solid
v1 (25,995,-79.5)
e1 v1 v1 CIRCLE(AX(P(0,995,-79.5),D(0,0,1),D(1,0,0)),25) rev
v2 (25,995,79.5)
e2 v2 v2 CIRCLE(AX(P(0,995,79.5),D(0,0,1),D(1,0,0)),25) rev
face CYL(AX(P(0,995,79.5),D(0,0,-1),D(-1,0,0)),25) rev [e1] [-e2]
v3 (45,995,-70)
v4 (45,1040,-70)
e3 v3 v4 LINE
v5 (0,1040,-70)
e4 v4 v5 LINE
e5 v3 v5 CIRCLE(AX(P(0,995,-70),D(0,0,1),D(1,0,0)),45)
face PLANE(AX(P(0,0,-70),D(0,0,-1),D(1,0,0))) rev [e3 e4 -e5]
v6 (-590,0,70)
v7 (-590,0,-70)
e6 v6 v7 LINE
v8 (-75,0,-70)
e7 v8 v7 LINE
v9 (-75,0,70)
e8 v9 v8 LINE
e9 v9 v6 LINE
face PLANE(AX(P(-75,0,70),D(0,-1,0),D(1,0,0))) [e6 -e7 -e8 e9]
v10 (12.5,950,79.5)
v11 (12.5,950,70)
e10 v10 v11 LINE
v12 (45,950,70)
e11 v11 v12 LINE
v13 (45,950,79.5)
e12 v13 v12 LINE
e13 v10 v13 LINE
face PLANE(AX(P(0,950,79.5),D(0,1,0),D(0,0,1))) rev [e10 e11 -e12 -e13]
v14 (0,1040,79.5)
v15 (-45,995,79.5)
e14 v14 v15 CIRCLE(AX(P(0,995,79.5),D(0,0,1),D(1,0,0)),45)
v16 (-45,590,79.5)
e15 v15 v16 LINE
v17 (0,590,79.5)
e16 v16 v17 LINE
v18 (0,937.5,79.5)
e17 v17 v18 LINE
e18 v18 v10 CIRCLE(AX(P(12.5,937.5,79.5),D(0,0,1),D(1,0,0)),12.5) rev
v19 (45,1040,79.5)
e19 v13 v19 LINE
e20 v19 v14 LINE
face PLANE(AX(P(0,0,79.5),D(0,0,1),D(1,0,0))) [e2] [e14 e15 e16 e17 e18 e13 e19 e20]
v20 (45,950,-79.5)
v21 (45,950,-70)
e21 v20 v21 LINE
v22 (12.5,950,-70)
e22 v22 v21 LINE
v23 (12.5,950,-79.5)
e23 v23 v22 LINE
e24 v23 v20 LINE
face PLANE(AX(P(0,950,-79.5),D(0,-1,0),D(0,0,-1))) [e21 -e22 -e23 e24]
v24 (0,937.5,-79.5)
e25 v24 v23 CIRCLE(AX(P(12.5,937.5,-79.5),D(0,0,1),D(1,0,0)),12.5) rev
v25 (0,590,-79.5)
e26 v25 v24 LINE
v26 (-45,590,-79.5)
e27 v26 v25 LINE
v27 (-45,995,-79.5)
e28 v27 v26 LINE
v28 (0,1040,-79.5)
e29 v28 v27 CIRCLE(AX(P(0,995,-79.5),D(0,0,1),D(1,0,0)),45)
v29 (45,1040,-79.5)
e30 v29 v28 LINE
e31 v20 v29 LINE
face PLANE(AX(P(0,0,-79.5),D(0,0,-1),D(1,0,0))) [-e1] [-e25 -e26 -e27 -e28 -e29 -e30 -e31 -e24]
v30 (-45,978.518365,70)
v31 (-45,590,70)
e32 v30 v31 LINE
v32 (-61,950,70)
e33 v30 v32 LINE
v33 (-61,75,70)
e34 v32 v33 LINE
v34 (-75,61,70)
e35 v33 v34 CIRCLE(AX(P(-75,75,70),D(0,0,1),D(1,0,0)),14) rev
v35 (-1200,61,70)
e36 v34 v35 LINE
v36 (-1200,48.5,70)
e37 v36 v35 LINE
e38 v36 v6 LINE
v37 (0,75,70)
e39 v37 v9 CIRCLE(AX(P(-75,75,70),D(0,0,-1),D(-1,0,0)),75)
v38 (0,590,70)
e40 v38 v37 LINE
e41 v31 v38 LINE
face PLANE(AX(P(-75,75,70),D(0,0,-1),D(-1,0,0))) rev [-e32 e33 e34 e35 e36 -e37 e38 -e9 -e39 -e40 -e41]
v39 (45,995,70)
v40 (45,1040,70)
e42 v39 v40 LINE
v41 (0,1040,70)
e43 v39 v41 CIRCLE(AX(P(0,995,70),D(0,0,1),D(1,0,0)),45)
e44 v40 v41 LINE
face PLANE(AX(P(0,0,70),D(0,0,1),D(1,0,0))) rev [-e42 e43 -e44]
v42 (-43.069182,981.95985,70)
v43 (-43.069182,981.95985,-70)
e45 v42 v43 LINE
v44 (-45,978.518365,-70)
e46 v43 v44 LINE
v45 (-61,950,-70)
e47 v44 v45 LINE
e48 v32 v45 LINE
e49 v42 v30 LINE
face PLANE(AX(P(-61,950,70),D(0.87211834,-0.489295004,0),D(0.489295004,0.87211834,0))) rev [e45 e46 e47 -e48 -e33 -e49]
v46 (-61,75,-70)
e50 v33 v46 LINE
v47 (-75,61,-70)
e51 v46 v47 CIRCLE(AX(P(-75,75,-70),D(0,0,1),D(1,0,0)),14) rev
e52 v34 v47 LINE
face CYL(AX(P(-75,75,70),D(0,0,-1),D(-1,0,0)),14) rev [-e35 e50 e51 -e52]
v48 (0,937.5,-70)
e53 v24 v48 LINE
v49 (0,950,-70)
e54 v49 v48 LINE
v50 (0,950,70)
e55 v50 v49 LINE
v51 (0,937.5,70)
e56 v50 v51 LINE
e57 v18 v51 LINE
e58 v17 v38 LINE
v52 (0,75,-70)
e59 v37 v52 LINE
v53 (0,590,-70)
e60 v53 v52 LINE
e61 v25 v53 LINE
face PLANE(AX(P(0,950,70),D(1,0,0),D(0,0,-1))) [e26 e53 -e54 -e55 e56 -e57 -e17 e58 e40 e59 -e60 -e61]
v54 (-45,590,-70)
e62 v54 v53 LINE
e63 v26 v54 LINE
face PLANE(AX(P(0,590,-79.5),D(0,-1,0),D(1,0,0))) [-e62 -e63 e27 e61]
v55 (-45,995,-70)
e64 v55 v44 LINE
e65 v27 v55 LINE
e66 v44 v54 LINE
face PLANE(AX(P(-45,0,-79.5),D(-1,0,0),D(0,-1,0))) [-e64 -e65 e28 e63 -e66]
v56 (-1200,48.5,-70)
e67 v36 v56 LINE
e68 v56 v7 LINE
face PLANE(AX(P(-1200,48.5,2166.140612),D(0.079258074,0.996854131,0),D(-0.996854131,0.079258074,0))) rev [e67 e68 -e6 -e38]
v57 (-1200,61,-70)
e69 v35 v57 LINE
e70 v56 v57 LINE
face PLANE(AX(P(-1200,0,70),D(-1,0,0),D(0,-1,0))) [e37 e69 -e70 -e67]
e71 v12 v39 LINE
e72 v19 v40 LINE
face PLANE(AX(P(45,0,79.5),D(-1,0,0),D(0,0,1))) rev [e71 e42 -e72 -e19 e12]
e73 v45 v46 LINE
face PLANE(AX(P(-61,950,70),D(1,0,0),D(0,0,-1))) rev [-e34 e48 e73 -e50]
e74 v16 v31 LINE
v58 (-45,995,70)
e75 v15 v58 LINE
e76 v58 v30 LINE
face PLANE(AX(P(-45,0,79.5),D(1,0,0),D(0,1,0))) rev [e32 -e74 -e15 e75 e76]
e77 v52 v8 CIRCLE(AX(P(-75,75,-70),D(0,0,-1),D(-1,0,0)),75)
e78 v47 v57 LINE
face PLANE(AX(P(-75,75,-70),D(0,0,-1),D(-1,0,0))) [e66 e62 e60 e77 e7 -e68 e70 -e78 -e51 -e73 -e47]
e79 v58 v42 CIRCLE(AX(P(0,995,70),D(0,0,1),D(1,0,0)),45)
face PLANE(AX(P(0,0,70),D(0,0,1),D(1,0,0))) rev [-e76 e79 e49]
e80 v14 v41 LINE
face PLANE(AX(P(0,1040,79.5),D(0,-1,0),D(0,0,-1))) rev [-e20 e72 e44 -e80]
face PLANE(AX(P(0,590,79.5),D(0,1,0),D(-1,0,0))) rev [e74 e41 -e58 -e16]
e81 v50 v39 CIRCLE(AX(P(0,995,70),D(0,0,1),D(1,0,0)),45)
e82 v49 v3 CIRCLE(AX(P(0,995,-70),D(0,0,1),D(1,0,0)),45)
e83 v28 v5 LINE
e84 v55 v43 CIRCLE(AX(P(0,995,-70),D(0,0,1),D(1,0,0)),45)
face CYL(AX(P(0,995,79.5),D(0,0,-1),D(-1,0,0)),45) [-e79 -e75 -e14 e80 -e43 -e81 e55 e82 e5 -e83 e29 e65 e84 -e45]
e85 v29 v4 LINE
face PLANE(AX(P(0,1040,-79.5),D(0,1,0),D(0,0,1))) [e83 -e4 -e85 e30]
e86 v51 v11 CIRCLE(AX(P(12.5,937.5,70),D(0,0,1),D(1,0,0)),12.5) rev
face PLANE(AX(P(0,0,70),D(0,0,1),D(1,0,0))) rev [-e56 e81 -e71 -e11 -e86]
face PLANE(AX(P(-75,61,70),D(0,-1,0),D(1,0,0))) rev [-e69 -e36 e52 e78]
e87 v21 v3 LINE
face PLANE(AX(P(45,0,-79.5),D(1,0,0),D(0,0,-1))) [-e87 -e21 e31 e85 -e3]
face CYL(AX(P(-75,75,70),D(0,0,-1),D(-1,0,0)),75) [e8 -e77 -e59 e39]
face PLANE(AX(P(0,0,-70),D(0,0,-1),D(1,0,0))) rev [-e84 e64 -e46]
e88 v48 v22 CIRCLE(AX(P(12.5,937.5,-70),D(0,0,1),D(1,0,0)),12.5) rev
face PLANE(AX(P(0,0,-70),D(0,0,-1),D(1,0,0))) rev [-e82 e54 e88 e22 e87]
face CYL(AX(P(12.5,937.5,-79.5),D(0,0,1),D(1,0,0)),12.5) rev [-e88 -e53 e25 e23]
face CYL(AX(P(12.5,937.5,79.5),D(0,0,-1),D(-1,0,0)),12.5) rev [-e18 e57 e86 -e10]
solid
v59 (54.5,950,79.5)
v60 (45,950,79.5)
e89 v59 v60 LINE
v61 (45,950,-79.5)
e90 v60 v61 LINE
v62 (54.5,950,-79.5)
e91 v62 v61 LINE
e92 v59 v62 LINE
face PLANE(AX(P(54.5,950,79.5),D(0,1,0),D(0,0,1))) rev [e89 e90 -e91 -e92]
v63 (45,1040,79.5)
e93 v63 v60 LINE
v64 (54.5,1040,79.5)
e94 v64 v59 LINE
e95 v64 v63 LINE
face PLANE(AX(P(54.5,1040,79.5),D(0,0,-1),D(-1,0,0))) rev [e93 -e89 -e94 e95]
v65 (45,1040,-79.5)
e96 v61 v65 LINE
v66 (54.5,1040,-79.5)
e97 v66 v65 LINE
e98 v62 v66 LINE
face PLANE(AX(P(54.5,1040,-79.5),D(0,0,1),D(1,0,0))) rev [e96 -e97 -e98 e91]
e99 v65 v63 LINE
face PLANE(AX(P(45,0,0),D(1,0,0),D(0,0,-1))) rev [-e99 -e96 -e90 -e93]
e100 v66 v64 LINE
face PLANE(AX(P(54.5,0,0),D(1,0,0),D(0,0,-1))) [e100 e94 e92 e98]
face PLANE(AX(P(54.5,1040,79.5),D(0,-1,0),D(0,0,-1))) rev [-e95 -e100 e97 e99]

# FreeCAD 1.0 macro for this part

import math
import FreeCAD as App
import Part
import Sketcher

V = App.Vector
Q = App.Units.Quantity


def add_polygon(sketch, points):
    """Adds a closed chain of lines whose ends are joined by coincident constraints."""
    first, n = sketch.GeometryCount, len(points)
    for a, b in zip(points, points[1:] + points[:1]):
        sketch.addGeometry(Part.LineSegment(App.Vector(*a, 0), App.Vector(*b, 0)), False)
    for i in range(n):
        sketch.addConstraint(Sketcher.Constraint("Coincident", first + i, 2, first + (i + 1) % n, 1))

doc = App.newDocument("Part")
body = doc.addObject("PartDesign::Body", "Body")

sketch1 = doc.addObject("Sketcher::SketchObject", "Sketch")
body.addObject(sketch1)
sketch1.AttachmentSupport = (doc.XY_Plane, [""])
sketch1.MapMode = "FlatFace"
sketch1.addGeometry(Part.LineSegment(V(0, 75, 0), V(0, 950, 0)), False)
sketch1.addGeometry(Part.LineSegment(V(0, 950, 0), V(-61, 950, 0)), False)
sketch1.addGeometry(Part.LineSegment(V(-61, 950, 0), V(-61, 75, 0)), False)
sketch1.addGeometry(Part.ArcOfCircle(Part.Circle(V(-75, 75, 0), V(0, 0, 1), 14), math.radians(-90), math.radians(0)), False)
sketch1.addGeometry(Part.LineSegment(V(-75, 61, 0), V(-1200, 61, 0)), False)
sketch1.addGeometry(Part.LineSegment(V(-1200, 61, 0), V(-1200, 0, 0)), False)
sketch1.addGeometry(Part.LineSegment(V(-1200, 0, 0), V(-75, 0, 0)), False)
sketch1.addGeometry(Part.ArcOfCircle(Part.Circle(V(-75, 75, 0), V(0, 0, 1), 75), math.radians(-90), math.radians(0)), False)
sketch1.addConstraint(Sketcher.Constraint("Coincident", 0, 2, 1, 1))
sketch1.addConstraint(Sketcher.Constraint("Coincident", 1, 2, 2, 1))
sketch1.addConstraint(Sketcher.Constraint("Tangent", 2, 2, 3, 2))
sketch1.addConstraint(Sketcher.Constraint("Tangent", 3, 1, 4, 1))
sketch1.addConstraint(Sketcher.Constraint("Coincident", 4, 2, 5, 1))
sketch1.addConstraint(Sketcher.Constraint("Coincident", 5, 2, 6, 1))
sketch1.addConstraint(Sketcher.Constraint("Tangent", 6, 2, 7, 1))
sketch1.addConstraint(Sketcher.Constraint("Tangent", 7, 2, 0, 1))
sketch1.addConstraint(Sketcher.Constraint("Vertical", 0))
sketch1.addConstraint(Sketcher.Constraint("Horizontal", 1))
sketch1.addConstraint(Sketcher.Constraint("Vertical", 2))
sketch1.addConstraint(Sketcher.Constraint("Horizontal", 4))
sketch1.addConstraint(Sketcher.Constraint("Vertical", 5))
sketch1.addConstraint(Sketcher.Constraint("Horizontal", 6))
sketch1.addConstraint(Sketcher.Constraint("Coincident", 7, 3, 3, 3))
sketch1.addConstraint(Sketcher.Constraint("PointOnObject", 0, 2, -2))
sketch1.addConstraint(Sketcher.Constraint("PointOnObject", 5, 2, -1))
sketch1.addConstraint(Sketcher.Constraint("Radius", 3, Q("14 mm")))
sketch1.addConstraint(Sketcher.Constraint("Radius", 7, Q("75 mm")))
sketch1.addConstraint(Sketcher.Constraint("DistanceX", 4, 2, 4, 1, Q("1125 mm")))
sketch1.addConstraint(Sketcher.Constraint("DistanceY", 0, 1, 0, 2, Q("875 mm")))
pad1 = doc.addObject("PartDesign::Pad", "Pad")
body.addObject(pad1)
pad1.Profile = sketch1
pad1.Length = 140
pad1.Midplane = True

sketch2 = doc.addObject("Sketcher::SketchObject", "Sketch001")
body.addObject(sketch2)
sketch2.AttachmentSupport = (doc.XY_Plane, [""])
sketch2.MapMode = "FlatFace"
sketch2.AttachmentOffset = App.Placement(V(0, 0, 70), App.Rotation())
add_polygon(sketch2, [(2412, -239), (-4202, 287), (-4680, -5717), (1935, -6243)])
sketch2.addConstraint(Sketcher.Constraint("Perpendicular", 0, 1))
sketch2.addConstraint(Sketcher.Constraint("Perpendicular", 1, 2))
sketch2.addConstraint(Sketcher.Constraint("Perpendicular", 2, 3))
sketch2.addConstraint(Sketcher.Constraint("DistanceY", 2, 2, -1, 1, Q("6243.361998 mm")))
sketch2.addConstraint(Sketcher.Constraint("Distance", 1, Q("6023.601919 mm")))
sketch2.addConstraint(Sketcher.Constraint("DistanceY", 1, 2, -1, 1, Q("5717.44291 mm")))
sketch2.addConstraint(Sketcher.Constraint("DistanceX", -1, 1, 2, 2, Q("1934.907138 mm")))
sketch2.addConstraint(Sketcher.Constraint("DistanceX", 1, 2, 0, 2, Q("477.419089 mm")))
pocket1 = doc.addObject("PartDesign::Pocket", "Pocket")
body.addObject(pocket1)
pocket1.Profile = sketch2
pocket1.Type = "ThroughAll"
pocket1.Midplane = True
body2 = doc.addObject("PartDesign::Body", "Body001")

sketch3 = doc.addObject("Sketcher::SketchObject", "Sketch002")
body2.addObject(sketch3)
sketch3.AttachmentSupport = (doc.getObject("XY_Plane001"), [""])
sketch3.MapMode = "FlatFace"
sketch3.addGeometry(Part.Circle(V(0, 995, 0), V(0, 0, 1), 45), False)
sketch3.addGeometry(Part.Circle(V(0, 995, 0), V(0, 0, 1), 25), False)
sketch3.addConstraint(Sketcher.Constraint("Coincident", 1, 3, 0, 3))
sketch3.addConstraint(Sketcher.Constraint("PointOnObject", 0, 3, -2))
sketch3.addConstraint(Sketcher.Constraint("Diameter", 0, Q("90 mm")))
sketch3.addConstraint(Sketcher.Constraint("Diameter", 1, Q("50 mm")))
sketch3.addConstraint(Sketcher.Constraint("DistanceY", -1, 1, 0, 3, Q("995 mm")))
pad2 = doc.addObject("PartDesign::Pad", "Pad001")
body2.addObject(pad2)
pad2.Profile = sketch3
pad2.Length = 140
pad2.Midplane = True
body3 = doc.addObject("PartDesign::Body", "Body002")

sketch4 = doc.addObject("Sketcher::SketchObject", "Sketch003")
body3.addObject(sketch4)
sketch4.AttachmentSupport = (doc.getObject("XY_Plane002"), [""])
sketch4.MapMode = "FlatFace"
sketch4.addGeometry(Part.LineSegment(V(-61, 950, 0), V(0, 950, 0)), False)
sketch4.addGeometry(Part.ArcOfCircle(Part.Circle(V(0, 995, 0), V(0, 0, 1), 45), math.radians(-163), math.radians(-90)), False)
sketch4.addGeometry(Part.LineSegment(V(-43, 982, 0), V(-61, 950, 0)), False)
sketch4.addConstraint(Sketcher.Constraint("Tangent", 0, 2, 1, 2))
sketch4.addConstraint(Sketcher.Constraint("Coincident", 1, 1, 2, 1))
sketch4.addConstraint(Sketcher.Constraint("Coincident", 2, 2, 0, 1))
sketch4.addConstraint(Sketcher.Constraint("Horizontal", 0))
sketch4.addConstraint(Sketcher.Constraint("PointOnObject", 1, 3, -2))
sketch4.addConstraint(Sketcher.Constraint("Radius", 1, Q("45 mm")))
sketch4.addConstraint(Sketcher.Constraint("DistanceX", 0, 1, 0, 2, Q("61 mm")))
sketch4.addConstraint(Sketcher.Constraint("DistanceY", -1, 1, 1, 3, Q("995 mm")))
sketch4.addConstraint(Sketcher.Constraint("Distance", 2, Q("36.646231 mm")))
pad3 = doc.addObject("PartDesign::Pad", "Pad002")
body3.addObject(pad3)
pad3.Profile = sketch4
pad3.Length = 140
pad3.Midplane = True
body.AllowCompound = True
doc.recompute()

boolean = doc.addObject("PartDesign::Boolean", "Boolean")
body.addObject(boolean)
boolean.Type = "Fuse"
boolean.addObjects([body2])
doc.recompute()

boolean2 = doc.addObject("PartDesign::Boolean", "Boolean001")
body.addObject(boolean2)
boolean2.Type = "Fuse"
boolean2.addObjects([body3])

sketch5 = doc.addObject("Sketcher::SketchObject", "Sketch004")
body.addObject(sketch5)
sketch5.AttachmentSupport = (doc.XY_Plane, [""])
sketch5.MapMode = "FlatFace"
sketch5.AttachmentOffset = App.Placement(V(0, 0, 70), App.Rotation())
sketch5.addGeometry(Part.LineSegment(V(45, 1040, 0), V(0, 1040, 0)), False)
sketch5.addGeometry(Part.ArcOfCircle(Part.Circle(V(0, 995, 0), V(0, 0, 1), 45), math.radians(90), math.radians(180)), False)
sketch5.addGeometry(Part.LineSegment(V(-45, 995, 0), V(-45, 590, 0)), False)
sketch5.addGeometry(Part.LineSegment(V(-45, 590, 0), V(0, 590, 0)), False)
sketch5.addGeometry(Part.LineSegment(V(0, 590, 0), V(0, 938, 0)), False)
sketch5.addGeometry(Part.ArcOfCircle(Part.Circle(V(12, 938, 0), V(0, 0, 1), 12), math.radians(90), math.radians(180)), False)
sketch5.addGeometry(Part.LineSegment(V(12, 950, 0), V(45, 950, 0)), False)
sketch5.addGeometry(Part.LineSegment(V(45, 950, 0), V(45, 1040, 0)), False)
sketch5.addGeometry(Part.Circle(V(0, 995, 0), V(0, 0, 1), 25), False)
sketch5.addConstraint(Sketcher.Constraint("Tangent", 0, 2, 1, 1))
sketch5.addConstraint(Sketcher.Constraint("Tangent", 1, 2, 2, 1))
sketch5.addConstraint(Sketcher.Constraint("Coincident", 2, 2, 3, 1))
sketch5.addConstraint(Sketcher.Constraint("Coincident", 3, 2, 4, 1))
sketch5.addConstraint(Sketcher.Constraint("Tangent", 4, 2, 5, 2))
sketch5.addConstraint(Sketcher.Constraint("Tangent", 5, 1, 6, 1))
sketch5.addConstraint(Sketcher.Constraint("Coincident", 6, 2, 7, 1))
sketch5.addConstraint(Sketcher.Constraint("Coincident", 7, 2, 0, 1))
sketch5.addConstraint(Sketcher.Constraint("Horizontal", 0))
sketch5.addConstraint(Sketcher.Constraint("Vertical", 2))
sketch5.addConstraint(Sketcher.Constraint("Horizontal", 3))
sketch5.addConstraint(Sketcher.Constraint("Vertical", 4))
sketch5.addConstraint(Sketcher.Constraint("Horizontal", 6))
sketch5.addConstraint(Sketcher.Constraint("Vertical", 7))
sketch5.addConstraint(Sketcher.Constraint("Coincident", 8, 3, 1, 3))
sketch5.addConstraint(Sketcher.Constraint("PointOnObject", 1, 3, -2))
sketch5.addConstraint(Sketcher.Constraint("PointOnObject", 3, 2, -2))
sketch5.addConstraint(Sketcher.Constraint("Equal", 0, 3))
sketch5.addConstraint(Sketcher.Constraint("Diameter", 8, Q("50 mm")))
sketch5.addConstraint(Sketcher.Constraint("Radius", 1, Q("45 mm")))
sketch5.addConstraint(Sketcher.Constraint("Radius", 5, Q("12.5 mm")))
sketch5.addConstraint(Sketcher.Constraint("DistanceY", 2, 2, 2, 1, Q("405 mm")))
sketch5.addConstraint(Sketcher.Constraint("DistanceY", 7, 1, 7, 2, Q("90 mm")))
sketch5.addConstraint(Sketcher.Constraint("DistanceY", -1, 1, 1, 3, Q("995 mm")))
pad4 = doc.addObject("PartDesign::Pad", "Pad003")
body.addObject(pad4)
pad4.Profile = sketch5
pad4.Length = 9.5
doc.recompute()

mirrored = doc.addObject("PartDesign::Mirrored", "Mirrored")
body.addObject(mirrored)
mirrored.Originals = [pad4]
mirrored.MirrorPlane = (doc.XY_Plane, [""])
body.Tip = mirrored
body4 = doc.addObject("PartDesign::Body", "Body003")

sketch6 = doc.addObject("Sketcher::SketchObject", "Sketch005")
body4.addObject(sketch6)
sketch6.AttachmentSupport = (doc.getObject("YZ_Plane003"), [""])
sketch6.MapMode = "FlatFace"
sketch6.AttachmentOffset = App.Placement(V(0, 0, 45), App.Rotation())
add_polygon(sketch6, [(1040, 80), (950, 80), (950, -80), (1040, -80)])
sketch6.addConstraint(Sketcher.Constraint("Horizontal", 0))
sketch6.addConstraint(Sketcher.Constraint("Vertical", 1))
sketch6.addConstraint(Sketcher.Constraint("Horizontal", 2))
sketch6.addConstraint(Sketcher.Constraint("Vertical", 3))
sketch6.addConstraint(Sketcher.Constraint("DistanceX", 0, 2, 0, 1, Q("90 mm")))
sketch6.addConstraint(Sketcher.Constraint("DistanceY", 1, 2, 1, 1, Q("159 mm")))
sketch6.addConstraint(Sketcher.Constraint("DistanceX", -1, 1, 0, 2, Q("950 mm")))
sketch6.addConstraint(Sketcher.Constraint("DistanceY", -1, 1, 0, 2, Q("79.5 mm")))
pad5 = doc.addObject("PartDesign::Pad", "Pad004")
body4.addObject(pad5)
pad5.Profile = sketch6
pad5.Length = 9.5

doc.recompute()
